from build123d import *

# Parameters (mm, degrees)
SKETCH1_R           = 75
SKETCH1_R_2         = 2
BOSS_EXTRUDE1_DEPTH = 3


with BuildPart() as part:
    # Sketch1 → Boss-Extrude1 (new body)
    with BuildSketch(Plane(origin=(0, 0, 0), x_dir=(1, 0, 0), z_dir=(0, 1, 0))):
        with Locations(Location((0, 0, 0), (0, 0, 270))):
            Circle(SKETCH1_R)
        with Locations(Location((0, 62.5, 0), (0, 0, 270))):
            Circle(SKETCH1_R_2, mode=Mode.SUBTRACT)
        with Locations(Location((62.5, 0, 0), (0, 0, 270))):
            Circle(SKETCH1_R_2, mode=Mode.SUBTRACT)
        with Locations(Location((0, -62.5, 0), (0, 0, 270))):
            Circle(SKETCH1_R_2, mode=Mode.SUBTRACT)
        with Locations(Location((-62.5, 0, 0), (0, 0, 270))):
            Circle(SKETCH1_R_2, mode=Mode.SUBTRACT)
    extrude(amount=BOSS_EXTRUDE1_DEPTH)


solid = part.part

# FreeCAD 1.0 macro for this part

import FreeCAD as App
import Part
import Sketcher

V = App.Vector

doc = App.newDocument("Part")
params = doc.addObject("Spreadsheet::Sheet", "Params")
for row, (alias, value) in enumerate([
    ("sketch1_diameter", "150 mm"),
    ("sketch1_diameter2", "4 mm"),
    ("pad1_length", "3 mm"),
], start=1):
    params.set(f"A{row}", alias)
    params.set(f"B{row}", "=" + value)
    params.setAlias(f"B{row}", alias)

body = doc.addObject("PartDesign::Body", "Body")

sketch1 = body.newObject("Sketcher::SketchObject", "Sketch")
sketch1.AttachmentSupport = (doc.getObject("XZ_Plane"), [""])
sketch1.MapMode = "FlatFace"
sketch1.addGeometry([
    Part.Circle(V(0, 0, 0), V(0, 0, 1), 75),
    Part.Circle(V(0, -62.5, 0), V(0, 0, 1), 2),
    Part.Circle(V(-62.5, 0, 0), V(0, 0, 1), 2),
    Part.Circle(V(0, 62.5, 0), V(0, 0, 1), 2),
    Part.Circle(V(62.5, 0, 0), V(0, 0, 1), 2),
], False)
sketch1.addConstraint([
    Sketcher.Constraint("Coincident", 0, 3, -1, 1),
    Sketcher.Constraint("Equal", 1, 2),
    Sketcher.Constraint("Equal", 2, 3),
    Sketcher.Constraint("Equal", 3, 4),
    Sketcher.Constraint("Symmetric", 1, 3, 3, 3, -1, 1),
    Sketcher.Constraint("Symmetric", 2, 3, 4, 3, -1, 1),
    Sketcher.Constraint("PointOnObject", 1, 3, -2),
    Sketcher.Constraint("PointOnObject", 2, 3, -1),
    Sketcher.Constraint("Diameter", 0, 150.0),
    Sketcher.Constraint("Diameter", 1, 4.0),
    Sketcher.Constraint("DistanceY", 1, 3, 3, 3, 125.0),
    Sketcher.Constraint("DistanceX", 2, 3, 4, 3, 125.0),
])
sketch1.setExpression("Constraints[8]", "Params.sketch1_diameter")
sketch1.setExpression("Constraints[9]", "Params.sketch1_diameter2")
pad1 = body.newObject("PartDesign::Pad", "Pad")
pad1.Profile = sketch1
pad1.setExpression("Length", "Params.pad1_length")
pad1.Reversed = True

doc.recompute()
